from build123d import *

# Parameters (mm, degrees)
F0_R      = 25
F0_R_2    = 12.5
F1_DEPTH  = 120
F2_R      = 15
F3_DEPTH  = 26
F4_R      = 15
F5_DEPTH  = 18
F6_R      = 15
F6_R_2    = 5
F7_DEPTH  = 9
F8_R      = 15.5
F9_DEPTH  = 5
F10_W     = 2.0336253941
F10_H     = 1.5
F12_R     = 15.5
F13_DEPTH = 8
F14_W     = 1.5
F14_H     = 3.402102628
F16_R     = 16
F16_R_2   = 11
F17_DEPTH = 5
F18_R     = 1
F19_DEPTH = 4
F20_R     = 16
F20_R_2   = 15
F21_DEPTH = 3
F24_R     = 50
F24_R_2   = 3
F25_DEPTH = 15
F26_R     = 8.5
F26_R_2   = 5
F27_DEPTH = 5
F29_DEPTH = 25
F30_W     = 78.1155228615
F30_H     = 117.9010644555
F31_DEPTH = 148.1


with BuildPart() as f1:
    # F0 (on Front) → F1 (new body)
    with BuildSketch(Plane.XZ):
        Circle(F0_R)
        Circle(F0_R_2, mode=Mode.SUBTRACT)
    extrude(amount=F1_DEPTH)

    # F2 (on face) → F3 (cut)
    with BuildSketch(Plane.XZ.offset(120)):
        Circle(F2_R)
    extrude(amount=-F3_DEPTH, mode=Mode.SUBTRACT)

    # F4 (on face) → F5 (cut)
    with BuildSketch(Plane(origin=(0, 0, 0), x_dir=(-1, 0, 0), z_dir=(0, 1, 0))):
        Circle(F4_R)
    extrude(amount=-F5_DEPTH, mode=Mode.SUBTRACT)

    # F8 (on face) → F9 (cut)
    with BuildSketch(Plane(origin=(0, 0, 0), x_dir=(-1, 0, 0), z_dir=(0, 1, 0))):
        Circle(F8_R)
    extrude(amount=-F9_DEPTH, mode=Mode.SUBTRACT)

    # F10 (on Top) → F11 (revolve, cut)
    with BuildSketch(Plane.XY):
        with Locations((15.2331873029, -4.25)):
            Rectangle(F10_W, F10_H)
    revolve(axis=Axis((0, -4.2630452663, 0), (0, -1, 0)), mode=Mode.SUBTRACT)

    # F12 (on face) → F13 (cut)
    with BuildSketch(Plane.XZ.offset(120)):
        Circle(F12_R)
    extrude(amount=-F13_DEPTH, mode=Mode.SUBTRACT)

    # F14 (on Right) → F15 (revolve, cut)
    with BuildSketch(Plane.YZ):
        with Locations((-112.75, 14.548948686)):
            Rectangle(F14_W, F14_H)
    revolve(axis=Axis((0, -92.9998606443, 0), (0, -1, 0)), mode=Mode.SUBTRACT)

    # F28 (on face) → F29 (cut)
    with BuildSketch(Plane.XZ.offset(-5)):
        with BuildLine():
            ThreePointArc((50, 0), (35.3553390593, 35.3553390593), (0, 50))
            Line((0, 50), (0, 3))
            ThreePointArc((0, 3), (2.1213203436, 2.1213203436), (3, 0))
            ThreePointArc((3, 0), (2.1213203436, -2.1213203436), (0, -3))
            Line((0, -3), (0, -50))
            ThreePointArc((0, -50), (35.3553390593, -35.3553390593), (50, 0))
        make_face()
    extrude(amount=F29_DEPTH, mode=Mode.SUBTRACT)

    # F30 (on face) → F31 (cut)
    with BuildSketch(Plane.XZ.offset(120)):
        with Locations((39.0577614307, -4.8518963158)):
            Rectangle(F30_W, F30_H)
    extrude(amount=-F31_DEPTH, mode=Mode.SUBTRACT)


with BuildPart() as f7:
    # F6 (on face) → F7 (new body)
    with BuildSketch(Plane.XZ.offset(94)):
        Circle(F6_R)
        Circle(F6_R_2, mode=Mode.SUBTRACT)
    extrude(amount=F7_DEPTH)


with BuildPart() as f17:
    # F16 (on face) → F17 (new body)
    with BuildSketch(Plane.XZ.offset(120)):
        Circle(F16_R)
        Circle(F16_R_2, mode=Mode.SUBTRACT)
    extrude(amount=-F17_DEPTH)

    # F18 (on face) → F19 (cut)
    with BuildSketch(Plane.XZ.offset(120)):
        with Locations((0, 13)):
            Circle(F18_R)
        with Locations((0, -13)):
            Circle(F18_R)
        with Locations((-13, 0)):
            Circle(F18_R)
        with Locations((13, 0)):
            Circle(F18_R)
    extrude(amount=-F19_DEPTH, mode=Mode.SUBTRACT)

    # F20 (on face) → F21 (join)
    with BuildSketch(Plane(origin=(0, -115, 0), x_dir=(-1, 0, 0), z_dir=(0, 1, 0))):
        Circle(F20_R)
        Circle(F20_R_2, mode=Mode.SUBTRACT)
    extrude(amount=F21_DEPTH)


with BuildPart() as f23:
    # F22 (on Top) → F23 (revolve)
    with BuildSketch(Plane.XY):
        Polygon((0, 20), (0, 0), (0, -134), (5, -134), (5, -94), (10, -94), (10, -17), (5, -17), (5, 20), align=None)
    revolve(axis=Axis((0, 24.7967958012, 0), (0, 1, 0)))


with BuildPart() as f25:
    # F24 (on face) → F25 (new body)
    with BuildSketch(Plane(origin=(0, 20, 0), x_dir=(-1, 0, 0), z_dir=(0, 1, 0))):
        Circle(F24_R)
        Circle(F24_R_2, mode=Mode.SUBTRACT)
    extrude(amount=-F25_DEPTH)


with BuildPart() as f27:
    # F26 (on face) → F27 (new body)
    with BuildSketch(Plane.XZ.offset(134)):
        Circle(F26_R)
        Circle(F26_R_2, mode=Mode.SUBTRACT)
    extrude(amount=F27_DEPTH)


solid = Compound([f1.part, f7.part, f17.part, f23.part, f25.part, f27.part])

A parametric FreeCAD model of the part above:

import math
import FreeCAD as App
import Part
import Sketcher
Q = App.Units.Quantity

doc = App.newDocument("Part")
body = doc.addObject("PartDesign::Body", "Body")

sketch1 = body.newObject("Sketcher::SketchObject", "Sketch")
sketch1.AttachmentSupport = (doc.getObject("XZ_Plane"), [""])
sketch1.MapMode = "FlatFace"
sketch1.addGeometry([
    Part.Circle(App.Vector(0, 0, 0), App.Vector(0, 0, 1), 25),
    Part.Circle(App.Vector(0, 0, 0), App.Vector(0, 0, 1), 12),
], False)
sketch1.addConstraint([
    Sketcher.Constraint("Coincident", 0, 3, -1, 1),
    Sketcher.Constraint("Coincident", 1, 3, -1, 1),
    Sketcher.Constraint("Diameter", 0, Q("50 mm")),
    Sketcher.Constraint("Diameter", 1, Q("25 mm")),
])
pad1 = body.newObject("PartDesign::Pad", "Pad")
pad1.Profile = sketch1
pad1.Length = 120

sketch2 = body.newObject("Sketcher::SketchObject", "Sketch001")
sketch2.AttachmentSupport = (doc.getObject("XZ_Plane"), [""])
sketch2.MapMode = "FlatFace"
sketch2.AttachmentOffset = App.Placement(App.Vector(0, 0, 120), App.Rotation())
sketch2.addGeometry(Part.Circle(App.Vector(0, 0, 0), App.Vector(0, 0, 1), 15), False)
sketch2.addConstraint([
    Sketcher.Constraint("Coincident", 0, 3, -1, 1),
    Sketcher.Constraint("Diameter", 0, Q("30 mm")),
])
pocket1 = body.newObject("PartDesign::Pocket", "Pocket")
pocket1.Profile = sketch2
pocket1.Length = 26

sketch3 = body.newObject("Sketcher::SketchObject", "Sketch002")
sketch3.AttachmentSupport = (doc.getObject("XZ_Plane"), [""])
sketch3.MapMode = "FlatFace"
sketch3.addGeometry(Part.Circle(App.Vector(0, 0, 0), App.Vector(0, 0, 1), 15), False)
sketch3.addConstraint([
    Sketcher.Constraint("Coincident", 0, 3, -1, 1),
    Sketcher.Constraint("Diameter", 0, Q("30 mm")),
])
pocket2 = body.newObject("PartDesign::Pocket", "Pocket001")
pocket2.Profile = sketch3
pocket2.Length = 18
pocket2.Reversed = True

sketch4 = body.newObject("Sketcher::SketchObject", "Sketch003")
sketch4.AttachmentSupport = (doc.getObject("XZ_Plane"), [""])
sketch4.MapMode = "FlatFace"
sketch4.addGeometry(Part.Circle(App.Vector(0, 0, 0), App.Vector(0, 0, 1), 16), False)
sketch4.addConstraint([
    Sketcher.Constraint("Coincident", 0, 3, -1, 1),
    Sketcher.Constraint("Diameter", 0, Q("31 mm")),
])
pocket3 = body.newObject("PartDesign::Pocket", "Pocket002")
pocket3.Profile = sketch4
pocket3.Length = 5
pocket3.Reversed = True

sketch5 = body.newObject("Sketcher::SketchObject", "Sketch004")
sketch5.AttachmentSupport = (doc.getObject("XY_Plane"), [""])
sketch5.MapMode = "FlatFace"
sketch5.addGeometry([
    Part.LineSegment(App.Vector(14.2, -3.5, 0), App.Vector(14.2, -5, 0)),
    Part.LineSegment(App.Vector(14.2, -5, 0), App.Vector(16.2, -5, 0)),
    Part.LineSegment(App.Vector(16.2, -5, 0), App.Vector(16.2, -3.5, 0)),
    Part.LineSegment(App.Vector(16.2, -3.5, 0), App.Vector(14.2, -3.5, 0)),
], False)
sketch5.addConstraint([
    Sketcher.Constraint("Coincident", 0, 2, 1, 1),
    Sketcher.Constraint("Coincident", 1, 2, 2, 1),
    Sketcher.Constraint("Coincident", 2, 2, 3, 1),
    Sketcher.Constraint("Coincident", 3, 2, 0, 1),
    Sketcher.Constraint("Vertical", 0),
    Sketcher.Constraint("Horizontal", 1),
    Sketcher.Constraint("Vertical", 2),
    Sketcher.Constraint("Horizontal", 3),
    Sketcher.Constraint("DistanceY", 0, 2, 0, 1, Q("1.5 mm")),
    Sketcher.Constraint("DistanceY", 0, 2, -1, 1, Q("5 mm")),
    Sketcher.Constraint("DistanceX", -1, 1, 1, 2, Q("16.25 mm")),
    Sketcher.Constraint("DistanceX", 1, 1, 1, 2, Q("2.033625 mm")),
])
groove = body.newObject("PartDesign::Groove", "Groove")
groove.Profile = sketch5
groove.ReferenceAxis = (sketch5, ["V_Axis"])
groove.Angle = 360

sketch6 = body.newObject("Sketcher::SketchObject", "Sketch005")
sketch6.AttachmentSupport = (doc.getObject("XZ_Plane"), [""])
sketch6.MapMode = "FlatFace"
sketch6.AttachmentOffset = App.Placement(App.Vector(0, 0, 120), App.Rotation())
sketch6.addGeometry(Part.Circle(App.Vector(0, 0, 0), App.Vector(0, 0, 1), 16), False)
sketch6.addConstraint([
    Sketcher.Constraint("Coincident", 0, 3, -1, 1),
    Sketcher.Constraint("Diameter", 0, Q("31 mm")),
])
pocket4 = body.newObject("PartDesign::Pocket", "Pocket003")
pocket4.Profile = sketch6
pocket4.Length = 8

sketch7 = body.newObject("Sketcher::SketchObject", "Sketch006")
sketch7.AttachmentSupport = (doc.getObject("YZ_Plane"), [""])
sketch7.MapMode = "FlatFace"
sketch7.addGeometry([
    Part.LineSegment(App.Vector(-113.5, 16.2, 0), App.Vector(-113.5, 12.8, 0)),
    Part.LineSegment(App.Vector(-113.5, 12.8, 0), App.Vector(-112, 12.8, 0)),
    Part.LineSegment(App.Vector(-112, 12.8, 0), App.Vector(-112, 16.2, 0)),
    Part.LineSegment(App.Vector(-112, 16.2, 0), App.Vector(-113.5, 16.2, 0)),
], False)
sketch7.addConstraint([
    Sketcher.Constraint("Coincident", 0, 2, 1, 1),
    Sketcher.Constraint("Coincident", 1, 2, 2, 1),
    Sketcher.Constraint("Coincident", 2, 2, 3, 1),
    Sketcher.Constraint("Coincident", 3, 2, 0, 1),
    Sketcher.Constraint("Vertical", 0),
    Sketcher.Constraint("Horizontal", 1),
    Sketcher.Constraint("Vertical", 2),
    Sketcher.Constraint("Horizontal", 3),
    Sketcher.Constraint("DistanceX", 1, 1, 1, 2, Q("1.5 mm")),
    Sketcher.Constraint("DistanceX", 1, 2, -1, 1, Q("112 mm")),
    Sketcher.Constraint("DistanceY", -1, 1, 2, 2, Q("16.25 mm")),
    Sketcher.Constraint("DistanceY", 0, 2, 0, 1, Q("3.402103 mm")),
])
groove2 = body.newObject("PartDesign::Groove", "Groove001")
groove2.Profile = sketch7
groove2.ReferenceAxis = (sketch7, ["H_Axis"])
groove2.Angle = 360

sketch8 = body.newObject("Sketcher::SketchObject", "Sketch007")
sketch8.AttachmentSupport = (doc.getObject("XZ_Plane"), [""])
sketch8.MapMode = "FlatFace"
sketch8.AttachmentOffset = App.Placement(App.Vector(0, 0, -5), App.Rotation())
sketch8.addGeometry([
    Part.ArcOfCircle(Part.Circle(App.Vector(0, 0, 0), App.Vector(0, 0, 1), 50), math.radians(0), math.radians(90)),
    Part.LineSegment(App.Vector(0, 50, 0), App.Vector(0, 3, 0)),
    Part.ArcOfCircle(Part.Circle(App.Vector(0, 0, 0), App.Vector(0, 0, 1), 3), math.radians(0), math.radians(90)),
    Part.ArcOfCircle(Part.Circle(App.Vector(0, 0, 0), App.Vector(0, 0, 1), 3), math.radians(-90), math.radians(0)),
    Part.LineSegment(App.Vector(0, -3, 0), App.Vector(0, -50, 0)),
    Part.ArcOfCircle(Part.Circle(App.Vector(0, 0, 0), App.Vector(0, 0, 1), 50), math.radians(-90), math.radians(0)),
], False)
sketch8.addConstraint([
    Sketcher.Constraint("Coincident", 0, 2, 1, 1),
    Sketcher.Constraint("Coincident", 1, 2, 2, 2),
    Sketcher.Constraint("Tangent", 2, 1, 3, 2),
    Sketcher.Constraint("Coincident", 3, 1, 4, 1),
    Sketcher.Constraint("Coincident", 4, 2, 5, 1),
    Sketcher.Constraint("Tangent", 5, 2, 0, 1),
    Sketcher.Constraint("Vertical", 1),
    Sketcher.Constraint("Vertical", 4),
    Sketcher.Constraint("Coincident", 0, 3, -1, 1),
    Sketcher.Constraint("Coincident", 2, 3, -1, 1),
    Sketcher.Constraint("Equal", 2, 3),
    Sketcher.Constraint("Equal", 0, 5),
    Sketcher.Constraint("PointOnObject", 0, 2, -2),
    Sketcher.Constraint("PointOnObject", 2, 1, -1),
    Sketcher.Constraint("PointOnObject", 3, 1, -2),
    Sketcher.Constraint("PointOnObject", 5, 2, -1),
    Sketcher.Constraint("Radius", 0, Q("50 mm")),
    Sketcher.Constraint("Radius", 2, Q("3 mm")),
])
pocket5 = body.newObject("PartDesign::Pocket", "Pocket004")
pocket5.Profile = sketch8
pocket5.Length = 25
pocket5.Reversed = True

sketch9 = body.newObject("Sketcher::SketchObject", "Sketch008")
sketch9.AttachmentSupport = (doc.getObject("XZ_Plane"), [""])
sketch9.MapMode = "FlatFace"
sketch9.AttachmentOffset = App.Placement(App.Vector(0, 0, 120), App.Rotation())
sketch9.addGeometry([
    Part.LineSegment(App.Vector(0, 54, 0), App.Vector(0, -64, 0)),
    Part.LineSegment(App.Vector(0, -64, 0), App.Vector(78, -64, 0)),
    Part.LineSegment(App.Vector(78, -64, 0), App.Vector(78, 54, 0)),
    Part.LineSegment(App.Vector(78, 54, 0), App.Vector(0, 54, 0)),
], False)
sketch9.addConstraint([
    Sketcher.Constraint("Coincident", 0, 2, 1, 1),
    Sketcher.Constraint("Coincident", 1, 2, 2, 1),
    Sketcher.Constraint("Coincident", 2, 2, 3, 1),
    Sketcher.Constraint("Coincident", 3, 2, 0, 1),
    Sketcher.Constraint("Vertical", 0),
    Sketcher.Constraint("Horizontal", 1),
    Sketcher.Constraint("Vertical", 2),
    Sketcher.Constraint("Horizontal", 3),
    Sketcher.Constraint("PointOnObject", 0, 2, -2),
    Sketcher.Constraint("DistanceX", 1, 1, 1, 2, Q("78.115523 mm")),
    Sketcher.Constraint("DistanceY", 0, 2, 0, 1, Q("117.901064 mm")),
    Sketcher.Constraint("DistanceY", 0, 2, -1, 1, Q("63.802429 mm")),
])
pocket6 = body.newObject("PartDesign::Pocket", "Pocket005")
pocket6.Profile = sketch9
pocket6.Length = 148.1
body2 = doc.addObject("PartDesign::Body", "Body001")

sketch10 = body2.newObject("Sketcher::SketchObject", "Sketch009")
sketch10.AttachmentSupport = (doc.getObject("XZ_Plane001"), [""])
sketch10.MapMode = "FlatFace"
sketch10.AttachmentOffset = App.Placement(App.Vector(0, 0, 94), App.Rotation())
sketch10.addGeometry([
    Part.Circle(App.Vector(0, 0, 0), App.Vector(0, 0, 1), 15),
    Part.Circle(App.Vector(0, 0, 0), App.Vector(0, 0, 1), 5),
], False)
sketch10.addConstraint([
    Sketcher.Constraint("Coincident", 0, 3, -1, 1),
    Sketcher.Constraint("Coincident", 1, 3, -1, 1),
    Sketcher.Constraint("Diameter", 0, Q("30 mm")),
    Sketcher.Constraint("Diameter", 1, Q("10 mm")),
])
pad2 = body2.newObject("PartDesign::Pad", "Pad001")
pad2.Profile = sketch10
pad2.Length = 9
body3 = doc.addObject("PartDesign::Body", "Body002")

sketch11 = body3.newObject("Sketcher::SketchObject", "Sketch010")
sketch11.AttachmentSupport = (doc.getObject("XZ_Plane002"), [""])
sketch11.MapMode = "FlatFace"
sketch11.AttachmentOffset = App.Placement(App.Vector(0, 0, 120), App.Rotation())
sketch11.addGeometry([
    Part.Circle(App.Vector(0, 0, 0), App.Vector(0, 0, 1), 16),
    Part.Circle(App.Vector(0, 0, 0), App.Vector(0, 0, 1), 11),
], False)
sketch11.addConstraint([
    Sketcher.Constraint("Coincident", 0, 3, -1, 1),
    Sketcher.Constraint("Coincident", 1, 3, -1, 1),
    Sketcher.Constraint("Diameter", 0, Q("32 mm")),
    Sketcher.Constraint("Diameter", 1, Q("22 mm")),
])
pad3 = body3.newObject("PartDesign::Pad", "Pad002")
pad3.Profile = sketch11
pad3.Length = 5
pad3.Reversed = True

sketch12 = body3.newObject("Sketcher::SketchObject", "Sketch011")
sketch12.AttachmentSupport = (doc.getObject("XZ_Plane002"), [""])
sketch12.MapMode = "FlatFace"
sketch12.AttachmentOffset = App.Placement(App.Vector(0, 0, 120), App.Rotation())
sketch12.addGeometry([
    Part.Circle(App.Vector(0, 13, 0), App.Vector(0, 0, 1), 1),
    Part.Circle(App.Vector(0, -13, 0), App.Vector(0, 0, 1), 1),
    Part.Circle(App.Vector(-13, 0, 0), App.Vector(0, 0, 1), 1),
    Part.Circle(App.Vector(13, 0, 0), App.Vector(0, 0, 1), 1),
], False)
sketch12.addConstraint([
    Sketcher.Constraint("Equal", 0, 1),
    Sketcher.Constraint("Equal", 1, 2),
    Sketcher.Constraint("Equal", 2, 3),
    Sketcher.Constraint("Symmetric", 0, 3, 1, 3, -1, 1),
    Sketcher.Constraint("Symmetric", 2, 3, 3, 3, -1, 1),
    Sketcher.Constraint("PointOnObject", 0, 3, -2),
    Sketcher.Constraint("PointOnObject", 2, 3, -1),
    Sketcher.Constraint("Diameter", 0, Q("2 mm")),
    Sketcher.Constraint("DistanceY", -1, 1, 0, 3, Q("13 mm")),
    Sketcher.Constraint("DistanceX", 2, 3, -1, 1, Q("13 mm")),
])
pocket7 = body3.newObject("PartDesign::Pocket", "Pocket006")
pocket7.Profile = sketch12
pocket7.Length = 4

sketch13 = body3.newObject("Sketcher::SketchObject", "Sketch012")
sketch13.AttachmentSupport = (doc.getObject("XZ_Plane002"), [""])
sketch13.MapMode = "FlatFace"
sketch13.AttachmentOffset = App.Placement(App.Vector(0, 0, 115), App.Rotation())
sketch13.addGeometry([
    Part.Circle(App.Vector(0, 0, 0), App.Vector(0, 0, 1), 16),
    Part.Circle(App.Vector(0, 0, 0), App.Vector(0, 0, 1), 15),
], False)
sketch13.addConstraint([
    Sketcher.Constraint("Coincident", 0, 3, -1, 1),
    Sketcher.Constraint("Coincident", 1, 3, -1, 1),
    Sketcher.Constraint("Diameter", 0, Q("32 mm")),
    Sketcher.Constraint("Diameter", 1, Q("30 mm")),
])
pad4 = body3.newObject("PartDesign::Pad", "Pad003")
pad4.Profile = sketch13
pad4.Length = 3
pad4.Reversed = True
body4 = doc.addObject("PartDesign::Body", "Body003")

sketch14 = body4.newObject("Sketcher::SketchObject", "Sketch013")
sketch14.AttachmentSupport = (doc.getObject("XY_Plane003"), [""])
sketch14.MapMode = "FlatFace"
sketch14.addGeometry([
    Part.LineSegment(App.Vector(0, 20, 0), App.Vector(0, -134, 0)),
    Part.LineSegment(App.Vector(0, -134, 0), App.Vector(5, -134, 0)),
    Part.LineSegment(App.Vector(5, -134, 0), App.Vector(5, -94, 0)),
    Part.LineSegment(App.Vector(5, -94, 0), App.Vector(10, -94, 0)),
    Part.LineSegment(App.Vector(10, -94, 0), App.Vector(10, -17, 0)),
    Part.LineSegment(App.Vector(10, -17, 0), App.Vector(5, -17, 0)),
    Part.LineSegment(App.Vector(5, -17, 0), App.Vector(5, 20, 0)),
    Part.LineSegment(App.Vector(5, 20, 0), App.Vector(0, 20, 0)),
], False)
sketch14.addConstraint([
    Sketcher.Constraint("Coincident", 0, 2, 1, 1),
    Sketcher.Constraint("Coincident", 1, 2, 2, 1),
    Sketcher.Constraint("Coincident", 2, 2, 3, 1),
    Sketcher.Constraint("Coincident", 3, 2, 4, 1),
    Sketcher.Constraint("Coincident", 4, 2, 5, 1),
    Sketcher.Constraint("Coincident", 5, 2, 6, 1),
    Sketcher.Constraint("Coincident", 6, 2, 7, 1),
    Sketcher.Constraint("Coincident", 7, 2, 0, 1),
    Sketcher.Constraint("Vertical", 0),
    Sketcher.Constraint("Horizontal", 1),
    Sketcher.Constraint("Vertical", 2),
    Sketcher.Constraint("Horizontal", 3),
    Sketcher.Constraint("Vertical", 4),
    Sketcher.Constraint("Horizontal", 5),
    Sketcher.Constraint("Vertical", 6),
    Sketcher.Constraint("Horizontal", 7),
    Sketcher.Constraint("PointOnObject", 0, 2, -2),
    Sketcher.Constraint("Vertical", 2, 2, 5, 2),
    Sketcher.Constraint("Equal", 1, 3),
    Sketcher.Constraint("DistanceX", 1, 1, 1, 2, Q("5 mm")),
    Sketcher.Constraint("DistanceY", 0, 2, 0, 1, Q("154 mm")),
    Sketcher.Constraint("DistanceY", 2, 1, 2, 2, Q("40 mm")),
    Sketcher.Constraint("DistanceY", 4, 1, 4, 2, Q("77 mm")),
    Sketcher.Constraint("DistanceY", 0, 2, -1, 1, Q("134 mm")),
])
revolution = body4.newObject("PartDesign::Revolution", "Revolution")
revolution.Profile = sketch14
revolution.ReferenceAxis = (sketch14, ["V_Axis"])
revolution.Angle = 360
body5 = doc.addObject("PartDesign::Body", "Body004")

sketch15 = body5.newObject("Sketcher::SketchObject", "Sketch014")
sketch15.AttachmentSupport = (doc.getObject("XZ_Plane004"), [""])
sketch15.MapMode = "FlatFace"
sketch15.AttachmentOffset = App.Placement(App.Vector(0, 0, -20), App.Rotation())
sketch15.addGeometry([
    Part.Circle(App.Vector(0, 0, 0), App.Vector(0, 0, 1), 50),
    Part.Circle(App.Vector(0, 0, 0), App.Vector(0, 0, 1), 3),
], False)
sketch15.addConstraint([
    Sketcher.Constraint("Coincident", 0, 3, -1, 1),
    Sketcher.Constraint("Coincident", 1, 3, -1, 1),
    Sketcher.Constraint("Diameter", 0, Q("100 mm")),
    Sketcher.Constraint("Diameter", 1, Q("6 mm")),
])
pad5 = body5.newObject("PartDesign::Pad", "Pad004")
pad5.Profile = sketch15
pad5.Length = 15
body6 = doc.addObject("PartDesign::Body", "Body005")

sketch16 = body6.newObject("Sketcher::SketchObject", "Sketch015")
sketch16.AttachmentSupport = (doc.getObject("XZ_Plane005"), [""])
sketch16.MapMode = "FlatFace"
sketch16.AttachmentOffset = App.Placement(App.Vector(0, 0, 134), App.Rotation())
sketch16.addGeometry([
    Part.Circle(App.Vector(0, 0, 0), App.Vector(0, 0, 1), 8),
    Part.Circle(App.Vector(0, 0, 0), App.Vector(0, 0, 1), 5),
], False)
sketch16.addConstraint([
    Sketcher.Constraint("Coincident", 0, 3, -1, 1),
    Sketcher.Constraint("Coincident", 1, 3, -1, 1),
    Sketcher.Constraint("Diameter", 0, Q("17 mm")),
    Sketcher.Constraint("Diameter", 1, Q("10 mm")),
])
pad6 = body6.newObject("PartDesign::Pad", "Pad005")
pad6.Profile = sketch16
pad6.Length = 5

doc.recompute()
